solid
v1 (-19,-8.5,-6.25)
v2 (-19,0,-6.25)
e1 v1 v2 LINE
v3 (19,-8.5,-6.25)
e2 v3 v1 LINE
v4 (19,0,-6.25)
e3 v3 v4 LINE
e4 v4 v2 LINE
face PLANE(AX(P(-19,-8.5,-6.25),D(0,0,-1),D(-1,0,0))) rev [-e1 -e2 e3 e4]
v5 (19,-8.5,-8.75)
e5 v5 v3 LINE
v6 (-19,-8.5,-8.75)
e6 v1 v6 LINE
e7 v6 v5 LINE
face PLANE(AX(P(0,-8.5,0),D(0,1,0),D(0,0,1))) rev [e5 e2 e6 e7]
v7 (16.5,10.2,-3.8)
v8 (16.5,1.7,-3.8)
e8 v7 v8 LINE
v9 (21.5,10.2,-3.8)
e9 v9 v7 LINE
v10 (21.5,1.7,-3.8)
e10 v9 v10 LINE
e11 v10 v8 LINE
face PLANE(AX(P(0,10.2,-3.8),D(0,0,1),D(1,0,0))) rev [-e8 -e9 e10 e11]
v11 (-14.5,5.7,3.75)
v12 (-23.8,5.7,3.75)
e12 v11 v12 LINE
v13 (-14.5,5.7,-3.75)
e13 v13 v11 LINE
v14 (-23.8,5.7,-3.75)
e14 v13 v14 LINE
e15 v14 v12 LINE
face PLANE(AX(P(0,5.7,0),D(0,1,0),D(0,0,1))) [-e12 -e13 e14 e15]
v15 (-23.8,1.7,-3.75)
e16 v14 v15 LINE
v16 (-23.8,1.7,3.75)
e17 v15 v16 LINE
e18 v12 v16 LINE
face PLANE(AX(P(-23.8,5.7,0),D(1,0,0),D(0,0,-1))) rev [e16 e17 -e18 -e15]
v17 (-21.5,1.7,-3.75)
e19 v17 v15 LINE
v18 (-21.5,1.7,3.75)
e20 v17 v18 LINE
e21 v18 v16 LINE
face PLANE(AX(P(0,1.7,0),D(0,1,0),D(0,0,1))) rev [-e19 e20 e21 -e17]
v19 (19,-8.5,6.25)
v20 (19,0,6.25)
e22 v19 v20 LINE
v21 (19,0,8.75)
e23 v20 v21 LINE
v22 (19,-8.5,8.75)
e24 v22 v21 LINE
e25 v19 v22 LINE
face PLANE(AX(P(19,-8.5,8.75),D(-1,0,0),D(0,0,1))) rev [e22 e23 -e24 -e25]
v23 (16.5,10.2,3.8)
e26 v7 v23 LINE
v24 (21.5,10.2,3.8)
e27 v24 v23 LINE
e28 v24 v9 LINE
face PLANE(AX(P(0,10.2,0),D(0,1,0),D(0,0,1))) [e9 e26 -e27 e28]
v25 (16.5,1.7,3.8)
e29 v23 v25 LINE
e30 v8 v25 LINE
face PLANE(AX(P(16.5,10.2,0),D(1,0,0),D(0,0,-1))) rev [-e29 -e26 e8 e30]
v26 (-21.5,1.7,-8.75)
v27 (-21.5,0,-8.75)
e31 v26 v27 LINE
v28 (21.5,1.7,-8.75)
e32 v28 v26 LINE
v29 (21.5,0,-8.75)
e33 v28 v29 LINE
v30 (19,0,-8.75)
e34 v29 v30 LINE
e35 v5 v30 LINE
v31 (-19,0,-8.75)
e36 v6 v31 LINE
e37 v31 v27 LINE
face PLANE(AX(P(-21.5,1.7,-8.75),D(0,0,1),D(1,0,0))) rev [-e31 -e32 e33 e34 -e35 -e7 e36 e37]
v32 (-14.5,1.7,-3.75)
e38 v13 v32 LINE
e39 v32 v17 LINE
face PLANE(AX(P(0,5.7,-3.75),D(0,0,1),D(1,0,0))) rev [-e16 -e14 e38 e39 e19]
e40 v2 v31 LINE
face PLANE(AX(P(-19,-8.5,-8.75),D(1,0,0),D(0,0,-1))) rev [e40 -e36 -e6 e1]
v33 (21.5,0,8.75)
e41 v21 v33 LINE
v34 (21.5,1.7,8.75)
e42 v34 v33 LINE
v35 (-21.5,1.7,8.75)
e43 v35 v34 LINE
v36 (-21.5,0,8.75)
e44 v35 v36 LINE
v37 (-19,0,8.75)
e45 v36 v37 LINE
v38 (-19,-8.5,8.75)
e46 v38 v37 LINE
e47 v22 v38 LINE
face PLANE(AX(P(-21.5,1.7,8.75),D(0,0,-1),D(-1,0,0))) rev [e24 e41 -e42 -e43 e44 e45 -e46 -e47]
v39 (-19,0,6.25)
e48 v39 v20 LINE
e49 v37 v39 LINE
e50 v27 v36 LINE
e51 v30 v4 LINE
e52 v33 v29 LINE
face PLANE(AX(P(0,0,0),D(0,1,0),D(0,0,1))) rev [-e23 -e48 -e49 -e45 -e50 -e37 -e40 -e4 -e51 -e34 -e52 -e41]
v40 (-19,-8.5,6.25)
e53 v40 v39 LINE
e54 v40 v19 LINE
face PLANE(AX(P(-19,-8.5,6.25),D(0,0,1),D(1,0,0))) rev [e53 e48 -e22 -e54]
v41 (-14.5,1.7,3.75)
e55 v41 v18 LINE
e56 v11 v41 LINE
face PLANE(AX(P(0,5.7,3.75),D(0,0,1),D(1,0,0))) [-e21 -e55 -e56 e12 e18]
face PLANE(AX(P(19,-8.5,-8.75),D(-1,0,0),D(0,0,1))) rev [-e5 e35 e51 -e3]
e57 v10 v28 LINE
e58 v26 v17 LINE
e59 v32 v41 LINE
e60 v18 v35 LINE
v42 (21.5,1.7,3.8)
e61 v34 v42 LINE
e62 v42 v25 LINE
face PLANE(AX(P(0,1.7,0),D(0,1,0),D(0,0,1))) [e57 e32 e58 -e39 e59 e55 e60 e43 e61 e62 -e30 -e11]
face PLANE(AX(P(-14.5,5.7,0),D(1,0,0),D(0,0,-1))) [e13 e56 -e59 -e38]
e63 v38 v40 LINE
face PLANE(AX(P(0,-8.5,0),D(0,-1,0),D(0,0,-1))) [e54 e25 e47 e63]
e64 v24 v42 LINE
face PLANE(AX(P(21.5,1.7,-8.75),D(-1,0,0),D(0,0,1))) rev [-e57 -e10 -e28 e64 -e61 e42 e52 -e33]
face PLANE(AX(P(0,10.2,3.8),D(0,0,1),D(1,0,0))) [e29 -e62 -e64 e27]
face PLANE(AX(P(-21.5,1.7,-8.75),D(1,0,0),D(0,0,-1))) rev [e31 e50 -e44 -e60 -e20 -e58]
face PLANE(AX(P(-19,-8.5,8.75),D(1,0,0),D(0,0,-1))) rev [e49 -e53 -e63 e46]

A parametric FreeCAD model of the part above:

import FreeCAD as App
import Part
import Sketcher

doc = App.newDocument("Part")
params = doc.addObject("Spreadsheet::Sheet", "Params")
for row, (alias, value) in enumerate([
    ("sketch1_width", "43 mm"),
    ("sketch1_height", "17.5 mm"),
    ("pad1_length", "1.7 mm"),
    ("sketch2_width", "5 mm"),
    ("sketch2_height", "7.6 mm"),
    ("pad2_length", "8.5 mm"),
    ("sketch3_width", "9.3 mm"),
    ("sketch3_height", "7.5 mm"),
    ("pad3_length", "4 mm"),
    ("sketch4_width", "38 mm"),
    ("sketch4_height", "2.5 mm"),
    ("pad4_length", "8.5 mm"),
], start=1):
    params.set(f"A{row}", alias)
    params.set(f"B{row}", "=" + value)
    params.setAlias(f"B{row}", alias)

body = doc.addObject("PartDesign::Body", "Body")

sketch1 = body.newObject("Sketcher::SketchObject", "Sketch")
sketch1.AttachmentSupport = (doc.getObject("XZ_Plane"), [""])
sketch1.MapMode = "FlatFace"
sketch1.addGeometry(Part.LineSegment(App.Vector(-22, -9, 0), App.Vector(-22, 9, 0)), False)
sketch1.addGeometry(Part.LineSegment(App.Vector(-22, 9, 0), App.Vector(22, 9, 0)), False)
sketch1.addGeometry(Part.LineSegment(App.Vector(22, 9, 0), App.Vector(22, -9, 0)), False)
sketch1.addGeometry(Part.LineSegment(App.Vector(22, -9, 0), App.Vector(-22, -9, 0)), False)
sketch1.addConstraint(Sketcher.Constraint("Coincident", 0, 2, 1, 1))
sketch1.addConstraint(Sketcher.Constraint("Coincident", 1, 2, 2, 1))
sketch1.addConstraint(Sketcher.Constraint("Coincident", 2, 2, 3, 1))
sketch1.addConstraint(Sketcher.Constraint("Coincident", 3, 2, 0, 1))
sketch1.addConstraint(Sketcher.Constraint("Vertical", 0))
sketch1.addConstraint(Sketcher.Constraint("Horizontal", 1))
sketch1.addConstraint(Sketcher.Constraint("Vertical", 2))
sketch1.addConstraint(Sketcher.Constraint("Horizontal", 3))
sketch1.addConstraint(Sketcher.Constraint("Symmetric", 0, 2, 2, 2, -1, 1))
sketch1.addConstraint(Sketcher.Constraint("DistanceX", 1, 1, 1, 2, 43.0))
sketch1.addConstraint(Sketcher.Constraint("DistanceY", 0, 1, 0, 2, 17.5))
sketch1.setExpression("Constraints[9]", "Params.sketch1_width")
sketch1.setExpression("Constraints[10]", "Params.sketch1_height")
pad1 = body.newObject("PartDesign::Pad", "Pad")
pad1.Profile = sketch1
pad1.setExpression("Length", "Params.pad1_length")
pad1.Reversed = True

sketch2 = body.newObject("Sketcher::SketchObject", "Sketch001")
sketch2.AttachmentSupport = (doc.getObject("XZ_Plane"), [""])
sketch2.MapMode = "FlatFace"
sketch2.AttachmentOffset = App.Placement(App.Vector(0, 0, -1.7), App.Rotation())
sketch2.addGeometry(Part.LineSegment(App.Vector(16, 4, 0), App.Vector(22, 4, 0)), False)
sketch2.addGeometry(Part.LineSegment(App.Vector(22, 4, 0), App.Vector(22, -4, 0)), False)
sketch2.addGeometry(Part.LineSegment(App.Vector(22, -4, 0), App.Vector(16, -4, 0)), False)
sketch2.addGeometry(Part.LineSegment(App.Vector(16, -4, 0), App.Vector(16, 4, 0)), False)
sketch2.addConstraint(Sketcher.Constraint("Coincident", 0, 2, 1, 1))
sketch2.addConstraint(Sketcher.Constraint("Coincident", 1, 2, 2, 1))
sketch2.addConstraint(Sketcher.Constraint("Coincident", 2, 2, 3, 1))
sketch2.addConstraint(Sketcher.Constraint("Coincident", 3, 2, 0, 1))
sketch2.addConstraint(Sketcher.Constraint("Horizontal", 0))
sketch2.addConstraint(Sketcher.Constraint("Vertical", 1))
sketch2.addConstraint(Sketcher.Constraint("Horizontal", 2))
sketch2.addConstraint(Sketcher.Constraint("Vertical", 3))
sketch2.addConstraint(Sketcher.Constraint("DistanceX", 0, 1, 0, 2, 5.0))
sketch2.addConstraint(Sketcher.Constraint("DistanceY", 1, 2, 1, 1, 7.6))
sketch2.addConstraint(Sketcher.Constraint("DistanceX", -1, 1, 0, 2, 21.5))
sketch2.addConstraint(Sketcher.Constraint("DistanceY", -1, 1, 0, 2, 3.8))
sketch2.setExpression("Constraints[8]", "Params.sketch2_width")
sketch2.setExpression("Constraints[9]", "Params.sketch2_height")
pad2 = body.newObject("PartDesign::Pad", "Pad001")
pad2.Profile = sketch2
pad2.setExpression("Length", "Params.pad2_length")
pad2.Reversed = True

sketch3 = body.newObject("Sketcher::SketchObject", "Sketch002")
sketch3.AttachmentSupport = (doc.getObject("XZ_Plane"), [""])
sketch3.MapMode = "FlatFace"
sketch3.AttachmentOffset = App.Placement(App.Vector(0, 0, -1.7), App.Rotation())
sketch3.addGeometry(Part.LineSegment(App.Vector(-14, 4, 0), App.Vector(-14, -4, 0)), False)
sketch3.addGeometry(Part.LineSegment(App.Vector(-14, -4, 0), App.Vector(-24, -4, 0)), False)
sketch3.addGeometry(Part.LineSegment(App.Vector(-24, -4, 0), App.Vector(-24, 4, 0)), False)
sketch3.addGeometry(Part.LineSegment(App.Vector(-24, 4, 0), App.Vector(-14, 4, 0)), False)
sketch3.addConstraint(Sketcher.Constraint("Coincident", 0, 2, 1, 1))
sketch3.addConstraint(Sketcher.Constraint("Coincident", 1, 2, 2, 1))
sketch3.addConstraint(Sketcher.Constraint("Coincident", 2, 2, 3, 1))
sketch3.addConstraint(Sketcher.Constraint("Coincident", 3, 2, 0, 1))
sketch3.addConstraint(Sketcher.Constraint("Vertical", 0))
sketch3.addConstraint(Sketcher.Constraint("Horizontal", 1))
sketch3.addConstraint(Sketcher.Constraint("Vertical", 2))
sketch3.addConstraint(Sketcher.Constraint("Horizontal", 3))
sketch3.addConstraint(Sketcher.Constraint("DistanceX", 1, 2, 1, 1, 9.3))
sketch3.addConstraint(Sketcher.Constraint("DistanceY", 0, 2, 0, 1, 7.5))
sketch3.addConstraint(Sketcher.Constraint("DistanceX", 0, 2, -1, 1, 14.5))
sketch3.addConstraint(Sketcher.Constraint("DistanceY", 0, 2, -1, 1, 3.75))
sketch3.setExpression("Constraints[8]", "Params.sketch3_width")
sketch3.setExpression("Constraints[9]", "Params.sketch3_height")
pad3 = body.newObject("PartDesign::Pad", "Pad002")
pad3.Profile = sketch3
pad3.setExpression("Length", "Params.pad3_length")
pad3.Reversed = True

sketch4 = body.newObject("Sketcher::SketchObject", "Sketch003")
sketch4.AttachmentSupport = (doc.getObject("XZ_Plane"), [""])
sketch4.MapMode = "FlatFace"
sketch4.addGeometry(Part.LineSegment(App.Vector(-19, 8.8, 0), App.Vector(-19, 6.2, 0)), False)
sketch4.addGeometry(Part.LineSegment(App.Vector(-19, 6.2, 0), App.Vector(19, 6.2, 0)), False)
sketch4.addGeometry(Part.LineSegment(App.Vector(19, 6.2, 0), App.Vector(19, 8.8, 0)), False)
sketch4.addGeometry(Part.LineSegment(App.Vector(19, 8.8, 0), App.Vector(-19, 8.8, 0)), False)
sketch4.addGeometry(Part.LineSegment(App.Vector(-19, -6.2, 0), App.Vector(-19, -8.8, 0)), False)
sketch4.addGeometry(Part.LineSegment(App.Vector(-19, -8.8, 0), App.Vector(19, -8.8, 0)), False)
sketch4.addGeometry(Part.LineSegment(App.Vector(19, -8.8, 0), App.Vector(19, -6.2, 0)), False)
sketch4.addGeometry(Part.LineSegment(App.Vector(19, -6.2, 0), App.Vector(-19, -6.2, 0)), False)
sketch4.addConstraint(Sketcher.Constraint("Coincident", 0, 2, 1, 1))
sketch4.addConstraint(Sketcher.Constraint("Coincident", 1, 2, 2, 1))
sketch4.addConstraint(Sketcher.Constraint("Coincident", 2, 2, 3, 1))
sketch4.addConstraint(Sketcher.Constraint("Coincident", 3, 2, 0, 1))
sketch4.addConstraint(Sketcher.Constraint("Coincident", 4, 2, 5, 1))
sketch4.addConstraint(Sketcher.Constraint("Coincident", 5, 2, 6, 1))
sketch4.addConstraint(Sketcher.Constraint("Coincident", 6, 2, 7, 1))
sketch4.addConstraint(Sketcher.Constraint("Coincident", 7, 2, 4, 1))
sketch4.addConstraint(Sketcher.Constraint("Vertical", 0))
sketch4.addConstraint(Sketcher.Constraint("Horizontal", 1))
sketch4.addConstraint(Sketcher.Constraint("Vertical", 2))
sketch4.addConstraint(Sketcher.Constraint("Horizontal", 3))
sketch4.addConstraint(Sketcher.Constraint("Vertical", 4))
sketch4.addConstraint(Sketcher.Constraint("Horizontal", 5))
sketch4.addConstraint(Sketcher.Constraint("Vertical", 6))
sketch4.addConstraint(Sketcher.Constraint("Horizontal", 7))
sketch4.addConstraint(Sketcher.Constraint("Symmetric", 2, 2, 4, 2, -1, 1))
sketch4.addConstraint(Sketcher.Constraint("Symmetric", 0, 2, 6, 2, -1, 1))
sketch4.addConstraint(Sketcher.Constraint("Vertical", 3, 2, 4, 2))
sketch4.addConstraint(Sketcher.Constraint("DistanceX", 1, 1, 1, 2, 38.0))
sketch4.addConstraint(Sketcher.Constraint("DistanceY", 0, 2, 0, 1, 2.5))
sketch4.addConstraint(Sketcher.Constraint("DistanceY", 4, 2, 0, 2, 15.0))
sketch4.setExpression("Constraints[19]", "Params.sketch4_width")
sketch4.setExpression("Constraints[20]", "Params.sketch4_height")
pad4 = body.newObject("PartDesign::Pad", "Pad003")
pad4.Profile = sketch4
pad4.setExpression("Length", "Params.pad4_length")

doc.recompute()
